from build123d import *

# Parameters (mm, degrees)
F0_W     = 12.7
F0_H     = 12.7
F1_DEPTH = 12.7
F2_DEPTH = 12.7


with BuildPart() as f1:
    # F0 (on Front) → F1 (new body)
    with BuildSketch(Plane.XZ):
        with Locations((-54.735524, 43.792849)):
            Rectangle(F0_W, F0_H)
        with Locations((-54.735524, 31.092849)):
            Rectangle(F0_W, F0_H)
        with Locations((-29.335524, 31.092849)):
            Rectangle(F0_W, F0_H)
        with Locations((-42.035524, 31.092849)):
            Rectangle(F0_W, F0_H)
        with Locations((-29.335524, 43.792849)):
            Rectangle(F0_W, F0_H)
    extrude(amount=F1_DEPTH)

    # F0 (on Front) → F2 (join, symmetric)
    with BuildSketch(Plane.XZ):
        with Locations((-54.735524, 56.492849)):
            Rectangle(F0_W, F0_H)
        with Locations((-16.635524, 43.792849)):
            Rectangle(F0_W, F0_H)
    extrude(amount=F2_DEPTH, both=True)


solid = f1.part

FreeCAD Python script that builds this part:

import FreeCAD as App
import Part
import Sketcher
from FreeCAD import Vector
Q = App.Units.Quantity


def add_polygon(sketch, points):
    """Adds a closed chain of lines whose ends are joined by coincident constraints."""
    first, n = sketch.GeometryCount, len(points)
    for a, b in zip(points, points[1:] + points[:1]):
        sketch.addGeometry(Part.LineSegment(App.Vector(*a, 0), App.Vector(*b, 0)), False)
    for i in range(n):
        sketch.addConstraint(Sketcher.Constraint("Coincident", first + i, 2, first + (i + 1) % n, 1))

doc = App.newDocument("Part")
body = doc.addObject("PartDesign::Body", "Body")

# Sketch on XZ plane
sketch1 = body.newObject("Sketcher::SketchObject", "Sketch")
sketch1.AttachmentSupport = (doc.getObject("XZ_Plane"), [""])
sketch1.MapMode = "FlatFace"
add_polygon(sketch1, [(-61.085524, 50.142849), (-61.085524, 24.742849), (-22.985524, 24.742849), (-22.985524, 50.142849), (-35.685524, 50.142849), (-35.685524, 37.442849), (-48.385524, 37.442849), (-48.385524, 50.142849)])  # lines 0-7
sketch1.addConstraint(Sketcher.Constraint("Vertical", 0))
sketch1.addConstraint(Sketcher.Constraint("Horizontal", 1))
sketch1.addConstraint(Sketcher.Constraint("Vertical", 2))
sketch1.addConstraint(Sketcher.Constraint("Horizontal", 3))
sketch1.addConstraint(Sketcher.Constraint("Vertical", 4))
sketch1.addConstraint(Sketcher.Constraint("Horizontal", 5))
sketch1.addConstraint(Sketcher.Constraint("Vertical", 6))
sketch1.addConstraint(Sketcher.Constraint("Horizontal", 7))
sketch1.addConstraint(Sketcher.Constraint("Horizontal", 3, 2, 6, 2))
sketch1.addConstraint(Sketcher.Constraint("Equal", 3, 5))
sketch1.addConstraint(Sketcher.Constraint("Equal", 5, 7))
sketch1.addConstraint(Sketcher.Constraint("Equal", 7, 4))
sketch1.addConstraint(Sketcher.Constraint("DistanceY", 0, 2, 0, 1, Q("1 in")))
sketch1.addConstraint(Sketcher.Constraint("DistanceX", 1, 1, 1, 2, Q("1.5 in")))
sketch1.addConstraint(Sketcher.Constraint("DistanceY", -1, 1, 0, 2, 24.742849))
sketch1.addConstraint(Sketcher.Constraint("DistanceX", 0, 2, -1, 1, 61.085524))
pad1 = body.newObject("PartDesign::Pad", "Pad")
pad1.Profile = sketch1
pad1.Length = Q("0.5 in")

# Sketch on XZ plane
sketch2 = body.newObject("Sketcher::SketchObject", "Sketch001")
sketch2.AttachmentSupport = (doc.getObject("XZ_Plane"), [""])
sketch2.MapMode = "FlatFace"
add_polygon(sketch2, [(-61.085524, 62.842849), (-61.085524, 50.142849), (-48.385524, 50.142849), (-48.385524, 62.842849)])  # lines 0-3
add_polygon(sketch2, [(-22.985524, 50.142849), (-22.985524, 37.442849), (-10.285524, 37.442849), (-10.285524, 50.142849)])  # lines 4-7
sketch2.addConstraint(Sketcher.Constraint("Vertical", 0))
sketch2.addConstraint(Sketcher.Constraint("Horizontal", 1))
sketch2.addConstraint(Sketcher.Constraint("Vertical", 2))
sketch2.addConstraint(Sketcher.Constraint("Horizontal", 3))
sketch2.addConstraint(Sketcher.Constraint("Vertical", 4))
sketch2.addConstraint(Sketcher.Constraint("Horizontal", 5))
sketch2.addConstraint(Sketcher.Constraint("Vertical", 6))
sketch2.addConstraint(Sketcher.Constraint("Horizontal", 7))
sketch2.addConstraint(Sketcher.Constraint("Horizontal", 1, 2, 6, 2))
sketch2.addConstraint(Sketcher.Constraint("Equal", 3, 5))
sketch2.addConstraint(Sketcher.Constraint("Equal", 7, 0))
sketch2.addConstraint(Sketcher.Constraint("Equal", 2, 4))
sketch2.addConstraint(Sketcher.Constraint("DistanceX", 1, 1, 1, 2, Q("0.5 in")))
sketch2.addConstraint(Sketcher.Constraint("DistanceX", 1, 2, 4, 2, Q("1 in")))
sketch2.addConstraint(Sketcher.Constraint("DistanceY", -1, 1, 0, 2, 50.142849))
sketch2.addConstraint(Sketcher.Constraint("DistanceX", 0, 2, -1, 1, 61.085524))
pad2 = body.newObject("PartDesign::Pad", "Pad001")
pad2.Profile = sketch2
pad2.Length = Q("1 in")
pad2.Midplane = True

doc.recompute()
